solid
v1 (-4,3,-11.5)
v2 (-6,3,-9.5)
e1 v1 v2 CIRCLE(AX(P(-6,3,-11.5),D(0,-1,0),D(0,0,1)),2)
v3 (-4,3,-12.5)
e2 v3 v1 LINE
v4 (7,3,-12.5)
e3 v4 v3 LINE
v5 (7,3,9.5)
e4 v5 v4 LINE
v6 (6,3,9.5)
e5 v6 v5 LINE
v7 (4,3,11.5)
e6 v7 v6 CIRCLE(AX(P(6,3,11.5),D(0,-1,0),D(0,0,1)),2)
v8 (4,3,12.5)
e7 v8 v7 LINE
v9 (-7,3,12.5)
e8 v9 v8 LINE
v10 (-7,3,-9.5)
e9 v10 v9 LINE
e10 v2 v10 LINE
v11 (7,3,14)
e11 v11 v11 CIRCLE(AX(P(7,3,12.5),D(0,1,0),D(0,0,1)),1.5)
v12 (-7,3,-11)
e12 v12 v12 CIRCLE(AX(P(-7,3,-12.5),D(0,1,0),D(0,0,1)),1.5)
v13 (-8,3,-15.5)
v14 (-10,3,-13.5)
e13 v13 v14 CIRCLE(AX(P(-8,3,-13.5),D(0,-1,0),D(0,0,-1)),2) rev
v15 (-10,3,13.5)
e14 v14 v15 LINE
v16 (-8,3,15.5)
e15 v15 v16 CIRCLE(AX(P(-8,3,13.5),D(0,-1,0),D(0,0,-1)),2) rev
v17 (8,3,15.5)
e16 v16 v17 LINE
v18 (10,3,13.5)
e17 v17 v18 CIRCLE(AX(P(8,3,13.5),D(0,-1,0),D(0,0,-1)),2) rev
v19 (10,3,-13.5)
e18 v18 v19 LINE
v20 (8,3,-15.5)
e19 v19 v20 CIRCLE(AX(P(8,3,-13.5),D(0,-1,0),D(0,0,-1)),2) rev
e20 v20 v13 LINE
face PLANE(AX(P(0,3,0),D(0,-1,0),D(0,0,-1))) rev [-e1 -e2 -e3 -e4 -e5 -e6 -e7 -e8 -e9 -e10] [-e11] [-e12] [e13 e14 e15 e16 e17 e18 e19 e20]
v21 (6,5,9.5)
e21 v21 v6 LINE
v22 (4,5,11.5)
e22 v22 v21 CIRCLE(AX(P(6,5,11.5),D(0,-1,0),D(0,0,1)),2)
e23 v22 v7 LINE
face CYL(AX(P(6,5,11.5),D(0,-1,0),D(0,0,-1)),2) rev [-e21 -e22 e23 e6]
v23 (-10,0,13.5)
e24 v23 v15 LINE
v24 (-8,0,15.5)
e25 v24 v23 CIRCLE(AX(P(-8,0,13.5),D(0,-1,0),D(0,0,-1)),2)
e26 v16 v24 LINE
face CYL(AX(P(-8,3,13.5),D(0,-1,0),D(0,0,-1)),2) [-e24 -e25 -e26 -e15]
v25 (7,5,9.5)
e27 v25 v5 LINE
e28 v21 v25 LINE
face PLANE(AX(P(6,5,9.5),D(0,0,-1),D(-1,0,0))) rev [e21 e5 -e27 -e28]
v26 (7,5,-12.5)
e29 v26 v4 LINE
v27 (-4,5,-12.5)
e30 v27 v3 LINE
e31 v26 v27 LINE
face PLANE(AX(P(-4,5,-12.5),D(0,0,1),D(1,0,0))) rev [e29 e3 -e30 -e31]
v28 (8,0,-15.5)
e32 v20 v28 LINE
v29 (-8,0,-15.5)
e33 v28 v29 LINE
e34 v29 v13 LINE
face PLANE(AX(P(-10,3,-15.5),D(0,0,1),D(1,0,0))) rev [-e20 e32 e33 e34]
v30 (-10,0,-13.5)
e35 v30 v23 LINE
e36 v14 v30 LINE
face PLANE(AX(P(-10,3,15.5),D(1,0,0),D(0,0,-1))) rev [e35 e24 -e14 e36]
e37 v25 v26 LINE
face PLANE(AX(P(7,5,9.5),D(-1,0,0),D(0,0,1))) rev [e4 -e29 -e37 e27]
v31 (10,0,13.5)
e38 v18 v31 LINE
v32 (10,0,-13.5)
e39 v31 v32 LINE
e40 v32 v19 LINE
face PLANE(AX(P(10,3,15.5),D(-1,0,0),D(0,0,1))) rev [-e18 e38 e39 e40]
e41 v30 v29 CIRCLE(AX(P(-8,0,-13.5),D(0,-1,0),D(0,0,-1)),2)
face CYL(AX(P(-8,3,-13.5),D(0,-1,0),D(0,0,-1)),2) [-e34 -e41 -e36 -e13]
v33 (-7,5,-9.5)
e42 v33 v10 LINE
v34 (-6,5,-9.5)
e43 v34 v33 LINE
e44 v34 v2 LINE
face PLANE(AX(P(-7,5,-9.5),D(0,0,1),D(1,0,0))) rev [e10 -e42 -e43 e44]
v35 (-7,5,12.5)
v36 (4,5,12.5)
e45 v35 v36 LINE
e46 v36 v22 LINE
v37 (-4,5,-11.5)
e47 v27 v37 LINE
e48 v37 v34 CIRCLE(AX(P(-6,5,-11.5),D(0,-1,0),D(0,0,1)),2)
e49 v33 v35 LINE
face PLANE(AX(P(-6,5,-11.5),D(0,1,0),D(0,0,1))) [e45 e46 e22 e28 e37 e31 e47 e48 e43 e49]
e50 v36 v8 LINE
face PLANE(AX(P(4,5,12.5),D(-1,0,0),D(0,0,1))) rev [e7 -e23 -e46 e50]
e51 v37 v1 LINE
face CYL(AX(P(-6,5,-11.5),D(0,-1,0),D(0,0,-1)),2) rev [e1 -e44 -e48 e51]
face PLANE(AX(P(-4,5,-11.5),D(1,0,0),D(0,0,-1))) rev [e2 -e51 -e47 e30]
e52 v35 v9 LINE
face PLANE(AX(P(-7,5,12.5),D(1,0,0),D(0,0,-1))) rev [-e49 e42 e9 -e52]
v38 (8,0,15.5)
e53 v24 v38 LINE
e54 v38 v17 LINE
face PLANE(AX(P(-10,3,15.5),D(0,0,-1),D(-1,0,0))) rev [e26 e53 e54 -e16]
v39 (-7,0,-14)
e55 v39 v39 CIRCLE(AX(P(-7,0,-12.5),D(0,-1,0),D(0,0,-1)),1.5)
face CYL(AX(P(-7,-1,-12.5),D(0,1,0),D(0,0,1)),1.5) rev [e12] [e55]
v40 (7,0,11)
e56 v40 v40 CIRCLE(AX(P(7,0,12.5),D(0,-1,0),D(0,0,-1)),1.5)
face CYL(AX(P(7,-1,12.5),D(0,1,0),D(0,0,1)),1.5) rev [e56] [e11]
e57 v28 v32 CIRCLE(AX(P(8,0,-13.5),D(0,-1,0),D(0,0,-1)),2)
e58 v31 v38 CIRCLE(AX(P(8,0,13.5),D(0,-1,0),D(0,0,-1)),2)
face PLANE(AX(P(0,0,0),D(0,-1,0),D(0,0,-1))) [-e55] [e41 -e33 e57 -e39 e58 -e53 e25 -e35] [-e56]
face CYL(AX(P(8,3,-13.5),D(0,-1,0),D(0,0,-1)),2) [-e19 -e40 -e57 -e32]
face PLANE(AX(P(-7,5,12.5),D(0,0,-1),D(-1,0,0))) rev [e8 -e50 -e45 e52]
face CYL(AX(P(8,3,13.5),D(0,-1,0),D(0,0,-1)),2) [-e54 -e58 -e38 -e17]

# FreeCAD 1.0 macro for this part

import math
import FreeCAD as App
import Part
import Sketcher
from FreeCAD import Vector
Q = App.Units.Quantity


def edges_at(feature, points):
    """Names of the edges that pass closest to the given points."""
    edges = feature.Shape.Edges
    near = lambda p: min(range(len(edges)), key=lambda i: edges[i].distToShape(Part.Vertex(*p))[0])
    return sorted({f"Edge{near(p) + 1}" for p in points})

doc = App.newDocument("Part")
body = doc.addObject("PartDesign::Body", "Body")

sketch1 = body.newObject("Sketcher::SketchObject", "Sketch")
sketch1.AttachmentSupport = (doc.getObject("XZ_Plane"), [""])
sketch1.MapMode = "FlatFace"
sketch1.addGeometry([
    Part.LineSegment(Vector(-10, -16, 0), Vector(-10, 16, 0)),
    Part.LineSegment(Vector(-10, 16, 0), Vector(10, 16, 0)),
    Part.LineSegment(Vector(10, 16, 0), Vector(10, -16, 0)),
    Part.LineSegment(Vector(10, -16, 0), Vector(-10, -16, 0)),
], False)
sketch1.addConstraint([
    Sketcher.Constraint("Coincident", 0, 2, 1, 1),
    Sketcher.Constraint("Coincident", 1, 2, 2, 1),
    Sketcher.Constraint("Coincident", 2, 2, 3, 1),
    Sketcher.Constraint("Coincident", 3, 2, 0, 1),
    Sketcher.Constraint("Vertical", 0),
    Sketcher.Constraint("Horizontal", 1),
    Sketcher.Constraint("Vertical", 2),
    Sketcher.Constraint("Horizontal", 3),
    Sketcher.Constraint("Symmetric", 0, 2, 2, 2, -1, 1),
    Sketcher.Constraint("DistanceX", 1, 1, 1, 2, Q("20 mm")),
    Sketcher.Constraint("DistanceY", 0, 1, 0, 2, Q("31 mm")),
])
pad1 = body.newObject("PartDesign::Pad", "Pad")
pad1.Profile = sketch1
pad1.Length = 3
pad1.Reversed = True
doc.recompute()

fillet = body.newObject("PartDesign::Fillet", "Fillet")
fillet.Base = (pad1, edges_at(pad1, [
    (10, 1.5, 15.5),
    (-10, 1.5, 15.5),
    (-10, 1.5, -15.5),
    (10, 1.5, -15.5),
]))
fillet.Radius = 2

sketch2 = body.newObject("Sketcher::SketchObject", "Sketch001")
sketch2.AttachmentSupport = (doc.getObject("XZ_Plane"), [""])
sketch2.MapMode = "FlatFace"
sketch2.AttachmentOffset = App.Placement(Vector(0, 0, -3), App.Rotation())
sketch2.addGeometry([
    Part.LineSegment(Vector(-7, 12.5, 0), Vector(4, 12.5, 0)),
    Part.LineSegment(Vector(4, 12.5, 0), Vector(4, 11.5, 0)),
    Part.ArcOfCircle(Part.Circle(Vector(6, 11.5, 0), Vector(0, 0, 1), 2), math.radians(-180), math.radians(-90)),
    Part.LineSegment(Vector(6, 9.5, 0), Vector(7, 9.5, 0)),
    Part.LineSegment(Vector(7, 9.5, 0), Vector(7, -12.5, 0)),
    Part.LineSegment(Vector(7, -12.5, 0), Vector(-4, -12.5, 0)),
    Part.LineSegment(Vector(-4, -12.5, 0), Vector(-4, -11.5, 0)),
    Part.ArcOfCircle(Part.Circle(Vector(-6, -11.5, 0), Vector(0, 0, 1), 2), math.radians(0), math.radians(90)),
    Part.LineSegment(Vector(-6, -9.5, 0), Vector(-7, -9.5, 0)),
    Part.LineSegment(Vector(-7, -9.5, 0), Vector(-7, 12.5, 0)),
], False)
sketch2.addConstraint([
    Sketcher.Constraint("Coincident", 0, 2, 1, 1),
    Sketcher.Constraint("Tangent", 1, 2, 2, 1),
    Sketcher.Constraint("Tangent", 2, 2, 3, 1),
    Sketcher.Constraint("Coincident", 3, 2, 4, 1),
    Sketcher.Constraint("Coincident", 4, 2, 5, 1),
    Sketcher.Constraint("Coincident", 5, 2, 6, 1),
    Sketcher.Constraint("Tangent", 6, 2, 7, 1),
    Sketcher.Constraint("Tangent", 7, 2, 8, 1),
    Sketcher.Constraint("Coincident", 8, 2, 9, 1),
    Sketcher.Constraint("Coincident", 9, 2, 0, 1),
    Sketcher.Constraint("Horizontal", 0),
    Sketcher.Constraint("Vertical", 1),
    Sketcher.Constraint("Horizontal", 3),
    Sketcher.Constraint("Vertical", 4),
    Sketcher.Constraint("Horizontal", 5),
    Sketcher.Constraint("Vertical", 6),
    Sketcher.Constraint("Horizontal", 8),
    Sketcher.Constraint("Vertical", 9),
    Sketcher.Constraint("Equal", 2, 7),
    Sketcher.Constraint("Symmetric", 2, 3, 7, 3, -1, 1),
    Sketcher.Constraint("Symmetric", 4, 2, 9, 2, -1, 1),
    Sketcher.Constraint("Equal", 8, 1),
    Sketcher.Constraint("Radius", 2, Q("2 mm")),
    Sketcher.Constraint("DistanceX", 0, 1, 0, 2, Q("11 mm")),
    Sketcher.Constraint("DistanceX", 3, 1, 3, 2, Q("1 mm")),
    Sketcher.Constraint("DistanceY", 4, 2, 4, 1, Q("22 mm")),
])
pad2 = body.newObject("PartDesign::Pad", "Pad001")
pad2.Profile = sketch2
pad2.Length = 2
pad2.Reversed = True

sketch3 = body.newObject("Sketcher::SketchObject", "Sketch002")
sketch3.AttachmentSupport = (doc.getObject("XZ_Plane"), [""])
sketch3.MapMode = "FlatFace"
sketch3.AttachmentOffset = App.Placement(Vector(0, 0, -3), App.Rotation())
sketch3.addGeometry([
    Part.Circle(Vector(-7, -12.5, 0), Vector(0, 0, 1), 1.5),
    Part.Circle(Vector(7, 12.5, 0), Vector(0, 0, 1), 1.5),
], False)
sketch3.addConstraint([
    Sketcher.Constraint("Equal", 0, 1),
    Sketcher.Constraint("Symmetric", 0, 3, 1, 3, -1, 1),
    Sketcher.Constraint("Diameter", 0, Q("3 mm")),
    Sketcher.Constraint("DistanceX", 0, 3, -1, 1, Q("7 mm")),
    Sketcher.Constraint("DistanceY", 0, 3, 1, 3, Q("25 mm")),
])
pocket1 = body.newObject("PartDesign::Pocket", "Pocket")
pocket1.Profile = sketch3
pocket1.Length = 4
pocket1.Reversed = True

doc.recompute()
